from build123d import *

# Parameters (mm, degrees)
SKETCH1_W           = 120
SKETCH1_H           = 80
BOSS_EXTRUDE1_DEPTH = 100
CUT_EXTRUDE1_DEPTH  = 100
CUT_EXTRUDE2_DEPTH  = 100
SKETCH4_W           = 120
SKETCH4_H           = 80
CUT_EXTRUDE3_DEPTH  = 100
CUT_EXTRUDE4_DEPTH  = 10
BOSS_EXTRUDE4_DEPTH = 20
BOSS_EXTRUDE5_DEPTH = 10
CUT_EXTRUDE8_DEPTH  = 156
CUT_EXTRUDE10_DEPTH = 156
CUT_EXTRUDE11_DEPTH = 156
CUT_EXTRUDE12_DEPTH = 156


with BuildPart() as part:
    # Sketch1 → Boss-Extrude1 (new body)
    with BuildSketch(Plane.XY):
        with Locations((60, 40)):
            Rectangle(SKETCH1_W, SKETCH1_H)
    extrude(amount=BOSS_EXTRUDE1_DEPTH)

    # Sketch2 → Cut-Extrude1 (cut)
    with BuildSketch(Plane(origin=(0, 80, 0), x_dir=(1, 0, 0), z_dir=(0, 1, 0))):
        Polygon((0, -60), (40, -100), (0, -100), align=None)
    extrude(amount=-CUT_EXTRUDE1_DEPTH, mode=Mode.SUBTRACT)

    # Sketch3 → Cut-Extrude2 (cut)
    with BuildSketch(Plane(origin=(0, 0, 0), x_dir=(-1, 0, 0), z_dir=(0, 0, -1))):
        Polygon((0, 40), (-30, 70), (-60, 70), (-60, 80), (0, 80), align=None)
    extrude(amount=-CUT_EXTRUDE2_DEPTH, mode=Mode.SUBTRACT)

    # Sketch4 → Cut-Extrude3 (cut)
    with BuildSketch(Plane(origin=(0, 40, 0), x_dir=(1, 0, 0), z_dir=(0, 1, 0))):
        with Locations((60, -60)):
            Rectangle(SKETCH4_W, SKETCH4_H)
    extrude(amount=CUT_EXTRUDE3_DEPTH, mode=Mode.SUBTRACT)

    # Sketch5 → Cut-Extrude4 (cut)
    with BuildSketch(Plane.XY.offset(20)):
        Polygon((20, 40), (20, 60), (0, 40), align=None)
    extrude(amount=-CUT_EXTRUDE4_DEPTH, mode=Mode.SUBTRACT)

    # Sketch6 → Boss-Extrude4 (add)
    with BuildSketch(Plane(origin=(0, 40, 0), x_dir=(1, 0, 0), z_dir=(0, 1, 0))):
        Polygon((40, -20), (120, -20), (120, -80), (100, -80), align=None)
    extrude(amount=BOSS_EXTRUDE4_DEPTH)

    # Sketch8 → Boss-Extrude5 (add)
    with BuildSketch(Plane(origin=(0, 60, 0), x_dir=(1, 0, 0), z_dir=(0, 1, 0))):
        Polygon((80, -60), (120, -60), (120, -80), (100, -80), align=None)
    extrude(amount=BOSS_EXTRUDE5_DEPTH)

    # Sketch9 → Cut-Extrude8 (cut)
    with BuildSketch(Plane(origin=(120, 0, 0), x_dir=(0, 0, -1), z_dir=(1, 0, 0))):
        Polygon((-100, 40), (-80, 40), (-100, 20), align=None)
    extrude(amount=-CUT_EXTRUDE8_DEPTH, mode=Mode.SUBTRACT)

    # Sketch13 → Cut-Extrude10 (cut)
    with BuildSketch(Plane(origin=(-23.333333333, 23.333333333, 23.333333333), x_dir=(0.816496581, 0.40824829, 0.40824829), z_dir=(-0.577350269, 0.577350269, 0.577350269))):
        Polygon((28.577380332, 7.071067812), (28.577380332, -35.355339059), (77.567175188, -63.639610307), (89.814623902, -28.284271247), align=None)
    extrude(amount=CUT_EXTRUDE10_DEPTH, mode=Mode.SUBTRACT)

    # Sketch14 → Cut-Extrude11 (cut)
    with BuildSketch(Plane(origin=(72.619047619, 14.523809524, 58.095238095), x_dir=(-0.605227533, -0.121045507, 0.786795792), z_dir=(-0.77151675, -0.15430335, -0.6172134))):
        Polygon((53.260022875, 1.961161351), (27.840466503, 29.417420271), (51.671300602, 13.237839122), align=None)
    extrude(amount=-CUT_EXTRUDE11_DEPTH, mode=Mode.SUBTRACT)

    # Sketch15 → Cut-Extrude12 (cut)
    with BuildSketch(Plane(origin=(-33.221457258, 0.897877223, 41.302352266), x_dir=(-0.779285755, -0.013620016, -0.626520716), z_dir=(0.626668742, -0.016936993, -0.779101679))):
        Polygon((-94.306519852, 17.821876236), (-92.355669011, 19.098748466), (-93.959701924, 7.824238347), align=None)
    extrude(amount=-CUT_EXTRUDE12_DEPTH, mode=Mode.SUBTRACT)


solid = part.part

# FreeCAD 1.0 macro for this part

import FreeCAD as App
import Part
import Sketcher
from FreeCAD import Vector
Q = App.Units.Quantity


def add_polygon(sketch, points):
    """Adds a closed chain of lines whose ends are joined by coincident constraints."""
    first, n = sketch.GeometryCount, len(points)
    for a, b in zip(points, points[1:] + points[:1]):
        sketch.addGeometry(Part.LineSegment(App.Vector(*a, 0), App.Vector(*b, 0)), False)
    for i in range(n):
        sketch.addConstraint(Sketcher.Constraint("Coincident", first + i, 2, first + (i + 1) % n, 1))

doc = App.newDocument("Part")
body = doc.addObject("PartDesign::Body", "Body")
body.AllowCompound = True

# Sketch on XY plane
sketch1 = doc.addObject("Sketcher::SketchObject", "Sketch")
body.addObject(sketch1)
sketch1.AttachmentSupport = (doc.XY_Plane, [""])
sketch1.MapMode = "FlatFace"
add_polygon(sketch1, [(0, 80), (0, 0), (120, 0), (120, 80)])  # lines 0-3
sketch1.addConstraint(Sketcher.Constraint("Vertical", 0))
sketch1.addConstraint(Sketcher.Constraint("Horizontal", 1))
sketch1.addConstraint(Sketcher.Constraint("Vertical", 2))
sketch1.addConstraint(Sketcher.Constraint("Horizontal", 3))
sketch1.addConstraint(Sketcher.Constraint("Coincident", 0, 2, -1, 1))
sketch1.addConstraint(Sketcher.Constraint("DistanceX", 1, 1, 1, 2, Q("120 mm")))
sketch1.addConstraint(Sketcher.Constraint("DistanceY", 0, 2, 0, 1, Q("80 mm")))
pad1 = doc.addObject("PartDesign::Pad", "Pad")
body.addObject(pad1)
pad1.Profile = sketch1
pad1.Length = 100

# Sketch on XZ plane
sketch2 = doc.addObject("Sketcher::SketchObject", "Sketch001")
body.addObject(sketch2)
sketch2.AttachmentSupport = (doc.XZ_Plane, [""])
sketch2.MapMode = "FlatFace"
sketch2.AttachmentOffset = App.Placement(Vector(0, 0, -80), App.Rotation())
add_polygon(sketch2, [(40, 100), (0, 60), (0, 100)])  # lines 0-2
sketch2.addConstraint(Sketcher.Constraint("Vertical", 1))
sketch2.addConstraint(Sketcher.Constraint("Horizontal", 2))
sketch2.addConstraint(Sketcher.Constraint("PointOnObject", 0, 2, -2))
sketch2.addConstraint(Sketcher.Constraint("Equal", 2, 1))
sketch2.addConstraint(Sketcher.Constraint("DistanceX", 2, 1, 2, 2, Q("40 mm")))
sketch2.addConstraint(Sketcher.Constraint("DistanceY", -1, 1, 0, 2, Q("60 mm")))
pocket1 = doc.addObject("PartDesign::Pocket", "Pocket")
body.addObject(pocket1)
pocket1.Profile = sketch2
pocket1.Length = 100
pocket1.Reversed = True

# Sketch on XY plane
sketch3 = doc.addObject("Sketcher::SketchObject", "Sketch002")
body.addObject(sketch3)
sketch3.AttachmentSupport = (doc.XY_Plane, [""])
sketch3.MapMode = "FlatFace"
add_polygon(sketch3, [(30, 70), (0, 40), (0, 80), (60, 80), (60, 70)])  # lines 0-4
sketch3.addConstraint(Sketcher.Constraint("Vertical", 1))
sketch3.addConstraint(Sketcher.Constraint("Horizontal", 2))
sketch3.addConstraint(Sketcher.Constraint("Vertical", 3))
sketch3.addConstraint(Sketcher.Constraint("Horizontal", 4))
sketch3.addConstraint(Sketcher.Constraint("PointOnObject", 0, 2, -2))
sketch3.addConstraint(Sketcher.Constraint("DistanceX", 2, 1, 2, 2, Q("60 mm")))
sketch3.addConstraint(Sketcher.Constraint("DistanceX", 4, 2, 4, 1, Q("30 mm")))
sketch3.addConstraint(Sketcher.Constraint("DistanceY", 1, 1, 1, 2, Q("40 mm")))
sketch3.addConstraint(Sketcher.Constraint("DistanceY", 3, 2, 3, 1, Q("10 mm")))
sketch3.addConstraint(Sketcher.Constraint("DistanceY", -1, 1, 0, 2, Q("40 mm")))
pocket2 = doc.addObject("PartDesign::Pocket", "Pocket001")
body.addObject(pocket2)
pocket2.Profile = sketch3
pocket2.Length = 100
pocket2.Reversed = True

# Sketch on XZ plane
sketch4 = doc.addObject("Sketcher::SketchObject", "Sketch003")
body.addObject(sketch4)
sketch4.AttachmentSupport = (doc.XZ_Plane, [""])
sketch4.MapMode = "FlatFace"
sketch4.AttachmentOffset = App.Placement(Vector(0, 0, -40), App.Rotation())
add_polygon(sketch4, [(0, 20), (0, 100), (120, 100), (120, 20)])  # lines 0-3
sketch4.addConstraint(Sketcher.Constraint("Vertical", 0))
sketch4.addConstraint(Sketcher.Constraint("Horizontal", 1))
sketch4.addConstraint(Sketcher.Constraint("Vertical", 2))
sketch4.addConstraint(Sketcher.Constraint("Horizontal", 3))
sketch4.addConstraint(Sketcher.Constraint("PointOnObject", 0, 2, -2))
sketch4.addConstraint(Sketcher.Constraint("DistanceX", 1, 1, 1, 2, Q("120 mm")))
sketch4.addConstraint(Sketcher.Constraint("DistanceY", 0, 1, 0, 2, Q("80 mm")))
sketch4.addConstraint(Sketcher.Constraint("DistanceY", -1, 1, 0, 2, Q("100 mm")))
pocket3 = doc.addObject("PartDesign::Pocket", "Pocket002")
body.addObject(pocket3)
pocket3.Profile = sketch4
pocket3.Length = 100

# Sketch on XY plane
sketch5 = doc.addObject("Sketcher::SketchObject", "Sketch004")
body.addObject(sketch5)
sketch5.AttachmentSupport = (doc.XY_Plane, [""])
sketch5.MapMode = "FlatFace"
sketch5.AttachmentOffset = App.Placement(Vector(0, 0, 20), App.Rotation())
add_polygon(sketch5, [(20, 40), (20, 60), (0, 40)])  # lines 0-2
sketch5.addConstraint(Sketcher.Constraint("Vertical", 0))
sketch5.addConstraint(Sketcher.Constraint("Horizontal", 2))
sketch5.addConstraint(Sketcher.Constraint("PointOnObject", 1, 2, -2))
sketch5.addConstraint(Sketcher.Constraint("Equal", 2, 0))
sketch5.addConstraint(Sketcher.Constraint("DistanceX", 2, 1, 2, 2, Q("20 mm")))
sketch5.addConstraint(Sketcher.Constraint("DistanceY", -1, 1, 0, 2, Q("60 mm")))
pocket4 = doc.addObject("PartDesign::Pocket", "Pocket003")
body.addObject(pocket4)
pocket4.Profile = sketch5
pocket4.Length = 10

# Sketch on XZ plane
sketch6 = doc.addObject("Sketcher::SketchObject", "Sketch005")
body.addObject(sketch6)
sketch6.AttachmentSupport = (doc.XZ_Plane, [""])
sketch6.MapMode = "FlatFace"
sketch6.AttachmentOffset = App.Placement(Vector(0, 0, -40), App.Rotation())
add_polygon(sketch6, [(120, 20), (40, 20), (100, 80), (120, 80)])  # lines 0-3
sketch6.addConstraint(Sketcher.Constraint("Horizontal", 0))
sketch6.addConstraint(Sketcher.Constraint("Horizontal", 2))
sketch6.addConstraint(Sketcher.Constraint("Vertical", 3))
sketch6.addConstraint(Sketcher.Constraint("DistanceX", 0, 2, 0, 1, Q("80 mm")))
sketch6.addConstraint(Sketcher.Constraint("DistanceX", 2, 1, 2, 2, Q("20 mm")))
sketch6.addConstraint(Sketcher.Constraint("DistanceY", 3, 2, 3, 1, Q("60 mm")))
sketch6.addConstraint(Sketcher.Constraint("DistanceX", -1, 1, 0, 2, Q("40 mm")))
sketch6.addConstraint(Sketcher.Constraint("DistanceY", -1, 1, 0, 2, Q("20 mm")))
pad2 = doc.addObject("PartDesign::Pad", "Pad001")
body.addObject(pad2)
pad2.Profile = sketch6
pad2.Length = 20
pad2.Reversed = True

# Sketch on XZ plane
sketch7 = doc.addObject("Sketcher::SketchObject", "Sketch006")
body.addObject(sketch7)
sketch7.AttachmentSupport = (doc.XZ_Plane, [""])
sketch7.MapMode = "FlatFace"
sketch7.AttachmentOffset = App.Placement(Vector(0, 0, -60), App.Rotation())
add_polygon(sketch7, [(120, 60), (80, 60), (100, 80), (120, 80)])  # lines 0-3
sketch7.addConstraint(Sketcher.Constraint("Horizontal", 0))
sketch7.addConstraint(Sketcher.Constraint("Horizontal", 2))
sketch7.addConstraint(Sketcher.Constraint("Vertical", 3))
sketch7.addConstraint(Sketcher.Constraint("Equal", 2, 3))
sketch7.addConstraint(Sketcher.Constraint("DistanceX", 0, 2, 0, 1, Q("40 mm")))
sketch7.addConstraint(Sketcher.Constraint("DistanceX", 2, 1, 2, 2, Q("20 mm")))
sketch7.addConstraint(Sketcher.Constraint("DistanceX", -1, 1, 0, 2, Q("80 mm")))
sketch7.addConstraint(Sketcher.Constraint("DistanceY", -1, 1, 0, 2, Q("60 mm")))
pad3 = doc.addObject("PartDesign::Pad", "Pad002")
body.addObject(pad3)
pad3.Profile = sketch7
pad3.Length = 10
pad3.Reversed = True

# Sketch on YZ plane
sketch8 = doc.addObject("Sketcher::SketchObject", "Sketch007")
body.addObject(sketch8)
sketch8.AttachmentSupport = (doc.YZ_Plane, [""])
sketch8.MapMode = "FlatFace"
sketch8.AttachmentOffset = App.Placement(Vector(0, 0, 120), App.Rotation())
add_polygon(sketch8, [(40, 80), (40, 100), (20, 100)])  # lines 0-2
sketch8.addConstraint(Sketcher.Constraint("Vertical", 0))
sketch8.addConstraint(Sketcher.Constraint("Horizontal", 1))
sketch8.addConstraint(Sketcher.Constraint("Equal", 1, 0))
sketch8.addConstraint(Sketcher.Constraint("DistanceX", 1, 2, 1, 1, Q("20 mm")))
sketch8.addConstraint(Sketcher.Constraint("DistanceX", -1, 1, 0, 2, Q("40 mm")))
sketch8.addConstraint(Sketcher.Constraint("DistanceY", -1, 1, 0, 2, Q("100 mm")))
pocket5 = doc.addObject("PartDesign::Pocket", "Pocket004")
body.addObject(pocket5)
pocket5.Profile = sketch8
pocket5.Length = 156

# Sketch on an angled plane
sketch9 = doc.addObject("Sketcher::SketchObject", "Sketch008")
body.addObject(sketch9)
sketch9.Placement = App.Placement(Vector(-23.333333, 23.333333, 23.333333), App.Rotation(Vector(0.816496581, 0.40824829, 0.40824829), Vector(0, 0.707106781, -0.707106781), Vector(-0.577350269, 0.577350269, 0.577350269), "ZXY"))
add_polygon(sketch9, [(28.57738, 7.071068), (28.57738, -35.355339), (77.567175, -63.63961), (89.814624, -28.284271)])  # lines 0-3
sketch9.addConstraint(Sketcher.Constraint("Vertical", 0))
sketch9.addConstraint(Sketcher.Constraint("Parallel", 1, 3))
sketch9.addConstraint(Sketcher.Constraint("Angle", 1, Q("-30 deg")))
sketch9.addConstraint(Sketcher.Constraint("Distance", 3, Q("70.710678 mm")))
sketch9.addConstraint(Sketcher.Constraint("DistanceY", 0, 2, 0, 1, Q("42.426407 mm")))
sketch9.addConstraint(Sketcher.Constraint("DistanceX", -1, 1, 0, 2, Q("28.57738 mm")))
sketch9.addConstraint(Sketcher.Constraint("DistanceY", 0, 2, -1, 1, Q("35.355339 mm")))
sketch9.addConstraint(Sketcher.Constraint("DistanceY", 1, 2, -1, 1, Q("63.63961 mm")))
pocket6 = doc.addObject("PartDesign::Pocket", "Pocket005")
body.addObject(pocket6)
pocket6.Profile = sketch9
pocket6.Length = 156
pocket6.Reversed = True

# Sketch on an angled plane
sketch10 = doc.addObject("Sketcher::SketchObject", "Sketch009")
body.addObject(sketch10)
sketch10.Placement = App.Placement(Vector(72.619048, 14.52381, 58.095238), App.Rotation(Vector(-0.605227533, -0.121045507, 0.786795792), Vector(-0.196116135, 0.980580676, 0), Vector(-0.77151675, -0.15430335, -0.6172134), "ZXY"))
add_polygon(sketch10, [(27.840466, 29.41742), (53.260023, 1.961161), (51.671301, 13.237839)])  # lines 0-2
sketch10.addConstraint(Sketcher.Constraint("DistanceX", -1, 1, 1, 2, Q("51.671301 mm")))
sketch10.addConstraint(Sketcher.Constraint("Distance", 1, Q("11.388042 mm")))
sketch10.addConstraint(Sketcher.Constraint("DistanceY", -1, 1, 0, 2, Q("1.961161 mm")))
sketch10.addConstraint(Sketcher.Constraint("DistanceY", -1, 1, 1, 2, Q("13.237839 mm")))
sketch10.addConstraint(Sketcher.Constraint("DistanceY", -1, 1, 2, 2, Q("29.41742 mm")))
sketch10.addConstraint(Sketcher.Constraint("Distance", 0, Q("37.416574 mm")))
pocket7 = doc.addObject("PartDesign::Pocket", "Pocket006")
body.addObject(pocket7)
pocket7.Profile = sketch10
pocket7.Length = 156

# Sketch on an angled plane
sketch11 = doc.addObject("Sketcher::SketchObject", "Sketch010")
body.addObject(sketch11)
sketch11.Placement = App.Placement(Vector(-33.221457, 0.897877, 41.302352), App.Rotation(Vector(-0.779285755, -0.013620016, -0.626520716), Vector(0, 0.999763789, -0.021733996), Vector(0.626668742, -0.016936993, -0.779101679), "ZXY"))
add_polygon(sketch11, [(-92.355669, 19.098748), (-94.30652, 17.821876), (-93.959702, 7.824238)])  # lines 0-2
sketch11.addConstraint(Sketcher.Constraint("DistanceX", 1, 2, -1, 1, Q("93.959702 mm")))
sketch11.addConstraint(Sketcher.Constraint("Distance", 0, Q("2.331571 mm")))
sketch11.addConstraint(Sketcher.Constraint("Distance", 1, Q("10.003652 mm")))
sketch11.addConstraint(Sketcher.Constraint("Distance", 2, Q("11.388042 mm")))
sketch11.addConstraint(Sketcher.Constraint("DistanceX", 0, 2, -1, 1, Q("94.30652 mm")))
sketch11.addConstraint(Sketcher.Constraint("DistanceY", -1, 1, 1, 2, Q("7.824238 mm")))
pocket8 = doc.addObject("PartDesign::Pocket", "Pocket007")
body.addObject(pocket8)
pocket8.Profile = sketch11
pocket8.Length = 156

doc.recompute()
